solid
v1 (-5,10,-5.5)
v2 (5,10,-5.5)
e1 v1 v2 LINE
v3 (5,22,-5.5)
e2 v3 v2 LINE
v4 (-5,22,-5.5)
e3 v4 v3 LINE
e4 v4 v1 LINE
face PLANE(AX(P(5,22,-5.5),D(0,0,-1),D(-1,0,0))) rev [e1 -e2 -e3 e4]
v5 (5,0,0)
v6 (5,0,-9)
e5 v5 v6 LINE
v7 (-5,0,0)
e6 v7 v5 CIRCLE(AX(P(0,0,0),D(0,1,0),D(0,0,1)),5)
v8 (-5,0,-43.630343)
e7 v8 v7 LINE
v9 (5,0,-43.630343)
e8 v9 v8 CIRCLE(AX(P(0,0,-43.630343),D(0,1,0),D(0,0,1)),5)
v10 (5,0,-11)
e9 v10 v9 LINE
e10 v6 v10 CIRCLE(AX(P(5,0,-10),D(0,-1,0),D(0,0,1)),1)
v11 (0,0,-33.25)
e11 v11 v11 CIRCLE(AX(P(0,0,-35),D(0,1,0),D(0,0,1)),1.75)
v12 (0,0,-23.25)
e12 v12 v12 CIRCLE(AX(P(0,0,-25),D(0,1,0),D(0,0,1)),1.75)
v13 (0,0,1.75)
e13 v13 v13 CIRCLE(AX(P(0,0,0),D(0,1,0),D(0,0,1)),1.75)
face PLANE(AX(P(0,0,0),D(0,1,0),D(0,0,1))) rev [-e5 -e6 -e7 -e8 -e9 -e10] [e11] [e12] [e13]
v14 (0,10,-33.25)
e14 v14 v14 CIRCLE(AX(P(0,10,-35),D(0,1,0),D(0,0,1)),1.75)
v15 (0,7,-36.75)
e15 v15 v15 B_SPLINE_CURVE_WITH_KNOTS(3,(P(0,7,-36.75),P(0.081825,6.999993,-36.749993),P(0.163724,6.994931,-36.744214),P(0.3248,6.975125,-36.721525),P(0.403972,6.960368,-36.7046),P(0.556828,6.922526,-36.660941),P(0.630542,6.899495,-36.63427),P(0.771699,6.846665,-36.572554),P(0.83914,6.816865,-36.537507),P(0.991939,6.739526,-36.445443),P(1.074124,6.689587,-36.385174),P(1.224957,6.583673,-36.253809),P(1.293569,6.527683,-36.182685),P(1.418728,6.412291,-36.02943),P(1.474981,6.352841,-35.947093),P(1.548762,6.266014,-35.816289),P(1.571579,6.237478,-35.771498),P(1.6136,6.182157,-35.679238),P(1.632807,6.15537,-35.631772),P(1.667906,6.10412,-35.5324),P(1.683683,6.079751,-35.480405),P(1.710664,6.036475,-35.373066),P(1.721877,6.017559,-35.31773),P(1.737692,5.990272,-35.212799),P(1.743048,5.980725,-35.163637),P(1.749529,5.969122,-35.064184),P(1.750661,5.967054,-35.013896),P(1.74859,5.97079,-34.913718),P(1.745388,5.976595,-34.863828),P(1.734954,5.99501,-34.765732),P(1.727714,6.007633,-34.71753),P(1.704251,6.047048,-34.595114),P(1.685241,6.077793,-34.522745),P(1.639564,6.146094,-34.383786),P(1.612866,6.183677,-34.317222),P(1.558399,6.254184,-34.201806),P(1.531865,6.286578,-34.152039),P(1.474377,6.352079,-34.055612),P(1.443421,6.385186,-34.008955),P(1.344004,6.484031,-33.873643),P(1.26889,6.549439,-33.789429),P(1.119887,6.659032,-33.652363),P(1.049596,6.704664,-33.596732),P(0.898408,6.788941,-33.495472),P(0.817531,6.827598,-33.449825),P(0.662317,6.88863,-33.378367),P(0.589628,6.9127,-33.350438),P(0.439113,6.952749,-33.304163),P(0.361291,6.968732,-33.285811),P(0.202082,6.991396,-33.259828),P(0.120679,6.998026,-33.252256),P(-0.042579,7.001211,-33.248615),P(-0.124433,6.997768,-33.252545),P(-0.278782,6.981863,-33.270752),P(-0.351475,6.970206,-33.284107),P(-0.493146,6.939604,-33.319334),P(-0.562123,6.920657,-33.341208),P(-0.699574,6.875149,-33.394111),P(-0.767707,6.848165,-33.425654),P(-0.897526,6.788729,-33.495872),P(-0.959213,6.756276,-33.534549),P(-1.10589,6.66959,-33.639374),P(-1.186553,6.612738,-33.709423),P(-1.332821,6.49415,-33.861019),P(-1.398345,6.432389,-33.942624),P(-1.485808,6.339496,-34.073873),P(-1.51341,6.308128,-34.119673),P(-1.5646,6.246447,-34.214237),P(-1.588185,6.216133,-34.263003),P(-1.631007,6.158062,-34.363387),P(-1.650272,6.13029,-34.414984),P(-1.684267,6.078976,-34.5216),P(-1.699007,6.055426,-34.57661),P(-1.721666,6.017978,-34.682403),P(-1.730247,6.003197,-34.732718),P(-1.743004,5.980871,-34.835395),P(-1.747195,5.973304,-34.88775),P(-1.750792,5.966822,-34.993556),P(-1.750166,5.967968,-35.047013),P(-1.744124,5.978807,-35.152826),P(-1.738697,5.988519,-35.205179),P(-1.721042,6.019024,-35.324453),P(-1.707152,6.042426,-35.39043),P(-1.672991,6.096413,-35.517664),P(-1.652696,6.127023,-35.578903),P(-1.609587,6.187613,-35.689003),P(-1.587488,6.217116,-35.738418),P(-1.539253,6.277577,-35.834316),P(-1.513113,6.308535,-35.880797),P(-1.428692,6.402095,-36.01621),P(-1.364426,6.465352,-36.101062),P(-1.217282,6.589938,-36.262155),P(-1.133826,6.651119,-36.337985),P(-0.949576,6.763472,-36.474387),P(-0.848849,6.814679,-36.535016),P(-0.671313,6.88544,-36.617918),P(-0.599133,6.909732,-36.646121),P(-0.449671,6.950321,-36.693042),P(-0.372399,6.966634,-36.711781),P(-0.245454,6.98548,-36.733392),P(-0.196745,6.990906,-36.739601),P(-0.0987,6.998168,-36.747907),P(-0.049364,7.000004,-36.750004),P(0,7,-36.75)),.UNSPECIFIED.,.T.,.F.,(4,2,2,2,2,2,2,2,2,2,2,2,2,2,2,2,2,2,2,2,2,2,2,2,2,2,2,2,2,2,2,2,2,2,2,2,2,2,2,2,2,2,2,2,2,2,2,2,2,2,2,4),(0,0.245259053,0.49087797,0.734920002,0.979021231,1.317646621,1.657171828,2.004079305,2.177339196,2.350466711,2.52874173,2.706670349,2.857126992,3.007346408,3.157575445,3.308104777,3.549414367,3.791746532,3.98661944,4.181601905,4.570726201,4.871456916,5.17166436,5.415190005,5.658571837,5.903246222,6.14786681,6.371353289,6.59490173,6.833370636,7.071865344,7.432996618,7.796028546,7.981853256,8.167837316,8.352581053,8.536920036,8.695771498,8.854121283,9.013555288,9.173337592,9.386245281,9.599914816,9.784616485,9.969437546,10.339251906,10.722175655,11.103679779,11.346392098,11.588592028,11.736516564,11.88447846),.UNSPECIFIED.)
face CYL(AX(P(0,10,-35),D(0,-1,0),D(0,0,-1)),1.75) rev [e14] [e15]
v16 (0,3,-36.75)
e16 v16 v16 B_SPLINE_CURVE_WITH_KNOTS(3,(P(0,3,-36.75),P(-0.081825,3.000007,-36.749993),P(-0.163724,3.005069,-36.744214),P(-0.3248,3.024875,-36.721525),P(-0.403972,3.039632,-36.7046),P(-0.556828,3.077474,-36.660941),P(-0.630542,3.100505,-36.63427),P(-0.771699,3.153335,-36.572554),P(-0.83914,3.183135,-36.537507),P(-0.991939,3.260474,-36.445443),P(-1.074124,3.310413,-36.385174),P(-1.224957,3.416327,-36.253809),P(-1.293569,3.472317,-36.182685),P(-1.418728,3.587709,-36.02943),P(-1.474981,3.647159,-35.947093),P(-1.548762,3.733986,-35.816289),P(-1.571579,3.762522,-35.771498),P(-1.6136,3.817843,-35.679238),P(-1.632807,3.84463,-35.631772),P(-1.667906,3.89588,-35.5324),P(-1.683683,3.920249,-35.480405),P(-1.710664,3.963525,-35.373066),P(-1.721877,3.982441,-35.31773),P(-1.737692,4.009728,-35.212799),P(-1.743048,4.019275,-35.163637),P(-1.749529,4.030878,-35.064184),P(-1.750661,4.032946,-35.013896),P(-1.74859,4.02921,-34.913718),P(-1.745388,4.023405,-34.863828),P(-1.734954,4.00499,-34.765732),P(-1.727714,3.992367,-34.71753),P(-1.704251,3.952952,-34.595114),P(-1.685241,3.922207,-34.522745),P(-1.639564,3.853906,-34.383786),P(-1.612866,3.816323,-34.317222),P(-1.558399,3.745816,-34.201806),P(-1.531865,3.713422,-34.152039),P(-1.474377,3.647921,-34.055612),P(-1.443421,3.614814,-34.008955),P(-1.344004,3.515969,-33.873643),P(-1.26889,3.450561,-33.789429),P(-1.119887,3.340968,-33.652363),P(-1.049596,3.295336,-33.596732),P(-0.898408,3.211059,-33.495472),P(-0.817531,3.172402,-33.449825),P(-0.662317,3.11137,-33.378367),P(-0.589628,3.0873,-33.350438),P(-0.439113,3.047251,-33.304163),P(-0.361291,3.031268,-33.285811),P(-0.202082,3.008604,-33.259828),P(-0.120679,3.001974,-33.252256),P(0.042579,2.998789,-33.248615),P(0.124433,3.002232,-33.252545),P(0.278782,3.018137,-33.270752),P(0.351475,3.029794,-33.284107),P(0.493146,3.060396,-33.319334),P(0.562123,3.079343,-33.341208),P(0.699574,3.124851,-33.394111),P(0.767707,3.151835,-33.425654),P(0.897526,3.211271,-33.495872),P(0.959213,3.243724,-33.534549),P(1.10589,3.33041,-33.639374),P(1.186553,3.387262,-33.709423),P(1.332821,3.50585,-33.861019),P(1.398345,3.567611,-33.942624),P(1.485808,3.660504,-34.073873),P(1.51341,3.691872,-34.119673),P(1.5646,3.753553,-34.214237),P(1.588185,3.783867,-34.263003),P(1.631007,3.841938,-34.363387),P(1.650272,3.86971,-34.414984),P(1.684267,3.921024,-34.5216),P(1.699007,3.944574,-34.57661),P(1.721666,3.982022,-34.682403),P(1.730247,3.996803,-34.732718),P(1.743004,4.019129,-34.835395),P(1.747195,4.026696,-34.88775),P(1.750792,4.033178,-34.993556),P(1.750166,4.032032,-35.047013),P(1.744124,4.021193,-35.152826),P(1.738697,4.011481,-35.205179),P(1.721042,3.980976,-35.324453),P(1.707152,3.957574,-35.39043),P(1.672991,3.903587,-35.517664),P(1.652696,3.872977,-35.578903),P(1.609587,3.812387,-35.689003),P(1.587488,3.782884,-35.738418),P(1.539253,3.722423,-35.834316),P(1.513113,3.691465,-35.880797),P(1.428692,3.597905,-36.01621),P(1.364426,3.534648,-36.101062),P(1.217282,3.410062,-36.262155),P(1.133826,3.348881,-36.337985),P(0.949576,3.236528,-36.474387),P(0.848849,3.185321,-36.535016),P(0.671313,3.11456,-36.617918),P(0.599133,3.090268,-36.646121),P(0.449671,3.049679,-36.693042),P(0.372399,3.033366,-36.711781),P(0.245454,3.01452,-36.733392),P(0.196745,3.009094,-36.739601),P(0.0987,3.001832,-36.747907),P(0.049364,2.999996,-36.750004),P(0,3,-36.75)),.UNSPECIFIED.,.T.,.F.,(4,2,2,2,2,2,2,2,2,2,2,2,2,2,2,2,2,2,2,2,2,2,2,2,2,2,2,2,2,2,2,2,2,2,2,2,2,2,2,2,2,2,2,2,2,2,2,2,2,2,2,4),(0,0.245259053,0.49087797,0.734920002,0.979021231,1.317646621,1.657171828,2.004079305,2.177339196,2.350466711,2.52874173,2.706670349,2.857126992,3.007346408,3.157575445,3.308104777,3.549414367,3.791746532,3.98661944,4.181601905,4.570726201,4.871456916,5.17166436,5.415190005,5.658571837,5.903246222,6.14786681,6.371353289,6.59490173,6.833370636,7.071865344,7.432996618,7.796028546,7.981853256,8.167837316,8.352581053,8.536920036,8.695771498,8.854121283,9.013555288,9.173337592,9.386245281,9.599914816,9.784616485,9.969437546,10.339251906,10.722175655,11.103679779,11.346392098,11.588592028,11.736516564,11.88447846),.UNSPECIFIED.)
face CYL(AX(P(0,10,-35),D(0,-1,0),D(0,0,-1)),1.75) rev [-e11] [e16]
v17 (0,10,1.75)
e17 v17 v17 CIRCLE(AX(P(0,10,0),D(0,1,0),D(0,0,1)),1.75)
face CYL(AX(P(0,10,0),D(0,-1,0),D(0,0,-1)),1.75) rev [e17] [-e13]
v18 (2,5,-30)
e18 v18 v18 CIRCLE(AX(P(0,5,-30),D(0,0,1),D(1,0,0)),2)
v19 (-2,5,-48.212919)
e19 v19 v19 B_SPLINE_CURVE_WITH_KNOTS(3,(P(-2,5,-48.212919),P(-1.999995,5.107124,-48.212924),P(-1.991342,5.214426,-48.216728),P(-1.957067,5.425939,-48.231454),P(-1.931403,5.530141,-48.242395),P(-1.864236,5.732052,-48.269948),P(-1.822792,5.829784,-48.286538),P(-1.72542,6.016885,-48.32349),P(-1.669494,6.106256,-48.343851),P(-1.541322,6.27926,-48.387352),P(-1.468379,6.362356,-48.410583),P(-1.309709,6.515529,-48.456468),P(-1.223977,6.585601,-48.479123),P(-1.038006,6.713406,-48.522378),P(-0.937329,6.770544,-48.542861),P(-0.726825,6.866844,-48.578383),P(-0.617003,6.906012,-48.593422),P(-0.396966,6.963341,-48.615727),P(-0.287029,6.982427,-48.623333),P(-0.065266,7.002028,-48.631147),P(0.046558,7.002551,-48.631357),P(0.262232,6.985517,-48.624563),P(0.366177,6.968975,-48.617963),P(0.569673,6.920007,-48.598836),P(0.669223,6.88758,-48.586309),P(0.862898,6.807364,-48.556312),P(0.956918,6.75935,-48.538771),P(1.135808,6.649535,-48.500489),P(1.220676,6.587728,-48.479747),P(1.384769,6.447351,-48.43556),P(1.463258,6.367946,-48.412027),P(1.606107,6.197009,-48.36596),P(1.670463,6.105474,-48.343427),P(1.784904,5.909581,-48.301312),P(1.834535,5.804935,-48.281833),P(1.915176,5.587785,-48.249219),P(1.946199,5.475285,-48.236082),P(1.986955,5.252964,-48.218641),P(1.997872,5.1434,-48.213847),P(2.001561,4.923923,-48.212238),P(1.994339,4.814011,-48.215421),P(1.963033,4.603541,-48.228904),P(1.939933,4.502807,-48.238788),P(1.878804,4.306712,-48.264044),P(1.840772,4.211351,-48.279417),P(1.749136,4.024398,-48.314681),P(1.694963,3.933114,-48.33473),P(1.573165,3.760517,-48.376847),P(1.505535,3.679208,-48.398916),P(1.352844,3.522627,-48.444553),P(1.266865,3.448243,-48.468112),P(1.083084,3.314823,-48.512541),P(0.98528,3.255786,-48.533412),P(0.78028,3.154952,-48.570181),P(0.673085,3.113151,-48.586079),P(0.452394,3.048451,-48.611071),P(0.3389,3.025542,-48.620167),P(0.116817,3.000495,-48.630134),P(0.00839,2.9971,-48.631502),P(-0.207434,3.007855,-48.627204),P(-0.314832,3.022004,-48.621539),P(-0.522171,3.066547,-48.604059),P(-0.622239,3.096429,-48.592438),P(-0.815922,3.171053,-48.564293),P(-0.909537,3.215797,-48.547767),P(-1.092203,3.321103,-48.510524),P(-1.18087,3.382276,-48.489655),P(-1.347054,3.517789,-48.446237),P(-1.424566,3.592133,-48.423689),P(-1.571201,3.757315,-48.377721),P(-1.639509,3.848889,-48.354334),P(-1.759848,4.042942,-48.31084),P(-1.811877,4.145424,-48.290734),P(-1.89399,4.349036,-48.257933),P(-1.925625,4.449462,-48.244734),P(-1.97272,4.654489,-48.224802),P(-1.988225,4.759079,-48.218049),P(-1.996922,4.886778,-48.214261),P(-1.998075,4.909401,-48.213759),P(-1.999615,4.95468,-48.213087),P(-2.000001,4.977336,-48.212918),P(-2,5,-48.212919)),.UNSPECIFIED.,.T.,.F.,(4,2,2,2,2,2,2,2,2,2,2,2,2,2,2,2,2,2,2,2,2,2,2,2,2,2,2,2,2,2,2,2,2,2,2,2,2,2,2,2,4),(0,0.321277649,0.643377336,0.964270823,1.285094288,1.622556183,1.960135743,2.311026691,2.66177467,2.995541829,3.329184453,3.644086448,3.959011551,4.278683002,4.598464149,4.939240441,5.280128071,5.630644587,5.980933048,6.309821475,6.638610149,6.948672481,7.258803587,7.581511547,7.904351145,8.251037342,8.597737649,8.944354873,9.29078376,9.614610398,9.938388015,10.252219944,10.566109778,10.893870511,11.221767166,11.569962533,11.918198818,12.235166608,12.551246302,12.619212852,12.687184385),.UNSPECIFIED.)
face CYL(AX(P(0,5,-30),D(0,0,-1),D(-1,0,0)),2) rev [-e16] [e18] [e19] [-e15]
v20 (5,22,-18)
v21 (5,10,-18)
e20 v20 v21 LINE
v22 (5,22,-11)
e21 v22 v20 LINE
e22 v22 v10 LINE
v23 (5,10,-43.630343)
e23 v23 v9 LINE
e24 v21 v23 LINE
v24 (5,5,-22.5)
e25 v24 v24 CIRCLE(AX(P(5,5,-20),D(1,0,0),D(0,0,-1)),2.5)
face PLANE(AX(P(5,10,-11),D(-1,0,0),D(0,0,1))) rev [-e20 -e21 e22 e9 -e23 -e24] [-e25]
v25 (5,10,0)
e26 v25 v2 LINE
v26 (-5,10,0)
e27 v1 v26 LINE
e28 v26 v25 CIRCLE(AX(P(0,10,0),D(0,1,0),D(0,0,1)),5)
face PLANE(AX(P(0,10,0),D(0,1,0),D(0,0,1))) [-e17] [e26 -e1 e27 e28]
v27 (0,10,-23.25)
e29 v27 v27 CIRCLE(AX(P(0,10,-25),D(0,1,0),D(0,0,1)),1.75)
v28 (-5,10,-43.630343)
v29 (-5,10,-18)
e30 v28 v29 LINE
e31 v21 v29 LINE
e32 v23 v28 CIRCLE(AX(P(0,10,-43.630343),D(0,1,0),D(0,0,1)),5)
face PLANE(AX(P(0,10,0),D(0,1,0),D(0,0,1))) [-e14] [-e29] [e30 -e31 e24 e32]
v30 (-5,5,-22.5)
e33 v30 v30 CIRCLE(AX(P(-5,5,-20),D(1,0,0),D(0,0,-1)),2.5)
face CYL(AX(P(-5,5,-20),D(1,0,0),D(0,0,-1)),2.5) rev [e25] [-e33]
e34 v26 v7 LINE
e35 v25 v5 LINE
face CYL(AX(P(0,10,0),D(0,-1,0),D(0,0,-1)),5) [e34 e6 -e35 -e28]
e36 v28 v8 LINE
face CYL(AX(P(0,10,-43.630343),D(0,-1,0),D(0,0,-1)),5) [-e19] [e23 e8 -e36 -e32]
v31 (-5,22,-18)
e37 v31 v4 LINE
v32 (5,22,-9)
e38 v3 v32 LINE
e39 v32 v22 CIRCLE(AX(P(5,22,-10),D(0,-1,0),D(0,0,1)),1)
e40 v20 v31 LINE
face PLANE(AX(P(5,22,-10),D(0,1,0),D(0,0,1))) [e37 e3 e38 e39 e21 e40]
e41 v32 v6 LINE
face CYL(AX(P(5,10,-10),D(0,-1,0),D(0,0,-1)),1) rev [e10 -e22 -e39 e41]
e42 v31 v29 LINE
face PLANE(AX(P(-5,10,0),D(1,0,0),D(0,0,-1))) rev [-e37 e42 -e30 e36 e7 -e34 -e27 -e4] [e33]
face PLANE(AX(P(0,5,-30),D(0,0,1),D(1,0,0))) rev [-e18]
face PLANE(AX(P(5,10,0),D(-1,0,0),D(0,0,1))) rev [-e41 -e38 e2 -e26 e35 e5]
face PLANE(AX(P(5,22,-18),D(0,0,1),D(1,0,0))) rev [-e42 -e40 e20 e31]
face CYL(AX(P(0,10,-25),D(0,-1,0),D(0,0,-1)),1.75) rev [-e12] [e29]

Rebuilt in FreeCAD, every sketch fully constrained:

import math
import FreeCAD as App
import Part
import Sketcher
Q = App.Units.Quantity

doc = App.newDocument("Part")
body = doc.addObject("PartDesign::Body", "Body")

sketch1 = body.newObject("Sketcher::SketchObject", "Sketch")
sketch1.AttachmentSupport = (doc.getObject("XZ_Plane"), [""])
sketch1.MapMode = "FlatFace"
sketch1.addGeometry([
    Part.LineSegment(App.Vector(-5, -43.630343, 0), App.Vector(-5, 0, 0)),
    Part.ArcOfCircle(Part.Circle(App.Vector(0, 0, 0), App.Vector(0, 0, 1), 5), math.radians(0), math.radians(180)),
    Part.LineSegment(App.Vector(5, 0, 0), App.Vector(5, -9, 0)),
    Part.ArcOfCircle(Part.Circle(App.Vector(5, -10, 0), App.Vector(0, 0, 1), 1), math.radians(90), math.radians(270)),
    Part.LineSegment(App.Vector(5, -11, 0), App.Vector(5, -43.630343, 0)),
    Part.ArcOfCircle(Part.Circle(App.Vector(0, -43.630343, 0), App.Vector(0, 0, 1), 5), math.radians(180), math.radians(360)),
    Part.Circle(App.Vector(0, 0, 0), App.Vector(0, 0, 1), 1.75),
    Part.Circle(App.Vector(0, -25, 0), App.Vector(0, 0, 1), 1.75),
    Part.Circle(App.Vector(0, -35, 0), App.Vector(0, 0, 1), 1.75),
], False)
sketch1.addConstraint([
    Sketcher.Constraint("Tangent", 0, 2, 1, 2),
    Sketcher.Constraint("Tangent", 1, 1, 2, 1),
    Sketcher.Constraint("Coincident", 2, 2, 3, 1),
    Sketcher.Constraint("Coincident", 3, 2, 4, 1),
    Sketcher.Constraint("Tangent", 4, 2, 5, 2),
    Sketcher.Constraint("Tangent", 5, 1, 0, 1),
    Sketcher.Constraint("Vertical", 0),
    Sketcher.Constraint("Vertical", 2),
    Sketcher.Constraint("Vertical", 4),
    Sketcher.Constraint("Coincident", 1, 3, -1, 1),
    Sketcher.Constraint("Coincident", 6, 3, -1, 1),
    Sketcher.Constraint("Equal", 1, 5),
    Sketcher.Constraint("Equal", 6, 7),
    Sketcher.Constraint("Equal", 7, 8),
    Sketcher.Constraint("PointOnObject", 7, 3, -2),
    Sketcher.Constraint("PointOnObject", 8, 3, -2),
    Sketcher.Constraint("Vertical", 3, 3, 1, 1),
    Sketcher.Constraint("Radius", 1, Q("5 mm")),
    Sketcher.Constraint("Radius", 3, Q("1 mm")),
    Sketcher.Constraint("Diameter", 6, Q("3.5 mm")),
    Sketcher.Constraint("DistanceY", 2, 2, 2, 1, Q("9 mm")),
    Sketcher.Constraint("DistanceY", 7, 3, -1, 1, Q("25 mm")),
    Sketcher.Constraint("DistanceY", 8, 3, -1, 1, Q("35 mm")),
    Sketcher.Constraint("DistanceY", 0, 1, 0, 2, Q("43.630343 mm")),
])
pad1 = body.newObject("PartDesign::Pad", "Pad")
pad1.Profile = sketch1
pad1.Length = 10
pad1.Reversed = True

sketch2 = body.newObject("Sketcher::SketchObject", "Sketch001")
sketch2.AttachmentSupport = (doc.getObject("YZ_Plane"), [""])
sketch2.MapMode = "FlatFace"
sketch2.AttachmentOffset = App.Placement(App.Vector(0, 0, 5), App.Rotation())
sketch2.addGeometry(Part.Circle(App.Vector(5, -20, 0), App.Vector(0, 0, 1), 2.5), False)
sketch2.addConstraint([
    Sketcher.Constraint("Diameter", 0, Q("5 mm")),
    Sketcher.Constraint("DistanceX", -1, 1, 0, 3, Q("5 mm")),
    Sketcher.Constraint("DistanceY", 0, 3, -1, 1, Q("20 mm")),
])
pocket1 = body.newObject("PartDesign::Pocket", "Pocket")
pocket1.Profile = sketch2
pocket1.Type = "ThroughAll"

sketch3 = body.newObject("Sketcher::SketchObject", "Sketch002")
sketch3.AttachmentSupport = (doc.getObject("XZ_Plane"), [""])
sketch3.MapMode = "FlatFace"
sketch3.AttachmentOffset = App.Placement(App.Vector(0, 0, -10), App.Rotation())
sketch3.addGeometry([
    Part.LineSegment(App.Vector(-5, -5.5, 0), App.Vector(5, -5.5, 0)),
    Part.LineSegment(App.Vector(5, -5.5, 0), App.Vector(5, -9, 0)),
    Part.ArcOfCircle(Part.Circle(App.Vector(5, -10, 0), App.Vector(0, 0, 1), 1), math.radians(90), math.radians(270)),
    Part.LineSegment(App.Vector(5, -11, 0), App.Vector(5, -18, 0)),
    Part.LineSegment(App.Vector(5, -18, 0), App.Vector(-5, -18, 0)),
    Part.LineSegment(App.Vector(-5, -18, 0), App.Vector(-5, -5.5, 0)),
], False)
sketch3.addConstraint([
    Sketcher.Constraint("Coincident", 0, 2, 1, 1),
    Sketcher.Constraint("Coincident", 1, 2, 2, 1),
    Sketcher.Constraint("Coincident", 2, 2, 3, 1),
    Sketcher.Constraint("Coincident", 3, 2, 4, 1),
    Sketcher.Constraint("Coincident", 4, 2, 5, 1),
    Sketcher.Constraint("Coincident", 5, 2, 0, 1),
    Sketcher.Constraint("Horizontal", 0),
    Sketcher.Constraint("Vertical", 1),
    Sketcher.Constraint("Vertical", 3),
    Sketcher.Constraint("Horizontal", 4),
    Sketcher.Constraint("Vertical", 5),
    Sketcher.Constraint("Vertical", 2, 3, 0, 2),
    Sketcher.Constraint("Vertical", 1, 2, 2, 2),
    Sketcher.Constraint("Radius", 2, Q("1 mm")),
    Sketcher.Constraint("DistanceX", 0, 1, 0, 2, Q("10 mm")),
    Sketcher.Constraint("DistanceY", 3, 2, 3, 1, Q("7 mm")),
    Sketcher.Constraint("DistanceY", 1, 2, 1, 1, Q("3.5 mm")),
    Sketcher.Constraint("DistanceX", -1, 1, 2, 3, Q("5 mm")),
    Sketcher.Constraint("DistanceY", 2, 3, -1, 1, Q("10 mm")),
])
pad2 = body.newObject("PartDesign::Pad", "Pad001")
pad2.Profile = sketch3
pad2.Length = 12
pad2.Reversed = True

sketch4 = body.newObject("Sketcher::SketchObject", "Sketch003")
sketch4.AttachmentSupport = (doc.getObject("XY_Plane"), [""])
sketch4.MapMode = "FlatFace"
sketch4.AttachmentOffset = App.Placement(App.Vector(0, 0, -55), App.Rotation())
sketch4.addGeometry(Part.Circle(App.Vector(0, 5, 0), App.Vector(0, 0, 1), 2), False)
sketch4.addConstraint([
    Sketcher.Constraint("PointOnObject", 0, 3, -2),
    Sketcher.Constraint("Diameter", 0, Q("4 mm")),
    Sketcher.Constraint("DistanceY", -1, 1, 0, 3, Q("5 mm")),
])
pocket2 = body.newObject("PartDesign::Pocket", "Pocket001")
pocket2.Profile = sketch4
pocket2.Length = 25
pocket2.Reversed = True

doc.recompute()
